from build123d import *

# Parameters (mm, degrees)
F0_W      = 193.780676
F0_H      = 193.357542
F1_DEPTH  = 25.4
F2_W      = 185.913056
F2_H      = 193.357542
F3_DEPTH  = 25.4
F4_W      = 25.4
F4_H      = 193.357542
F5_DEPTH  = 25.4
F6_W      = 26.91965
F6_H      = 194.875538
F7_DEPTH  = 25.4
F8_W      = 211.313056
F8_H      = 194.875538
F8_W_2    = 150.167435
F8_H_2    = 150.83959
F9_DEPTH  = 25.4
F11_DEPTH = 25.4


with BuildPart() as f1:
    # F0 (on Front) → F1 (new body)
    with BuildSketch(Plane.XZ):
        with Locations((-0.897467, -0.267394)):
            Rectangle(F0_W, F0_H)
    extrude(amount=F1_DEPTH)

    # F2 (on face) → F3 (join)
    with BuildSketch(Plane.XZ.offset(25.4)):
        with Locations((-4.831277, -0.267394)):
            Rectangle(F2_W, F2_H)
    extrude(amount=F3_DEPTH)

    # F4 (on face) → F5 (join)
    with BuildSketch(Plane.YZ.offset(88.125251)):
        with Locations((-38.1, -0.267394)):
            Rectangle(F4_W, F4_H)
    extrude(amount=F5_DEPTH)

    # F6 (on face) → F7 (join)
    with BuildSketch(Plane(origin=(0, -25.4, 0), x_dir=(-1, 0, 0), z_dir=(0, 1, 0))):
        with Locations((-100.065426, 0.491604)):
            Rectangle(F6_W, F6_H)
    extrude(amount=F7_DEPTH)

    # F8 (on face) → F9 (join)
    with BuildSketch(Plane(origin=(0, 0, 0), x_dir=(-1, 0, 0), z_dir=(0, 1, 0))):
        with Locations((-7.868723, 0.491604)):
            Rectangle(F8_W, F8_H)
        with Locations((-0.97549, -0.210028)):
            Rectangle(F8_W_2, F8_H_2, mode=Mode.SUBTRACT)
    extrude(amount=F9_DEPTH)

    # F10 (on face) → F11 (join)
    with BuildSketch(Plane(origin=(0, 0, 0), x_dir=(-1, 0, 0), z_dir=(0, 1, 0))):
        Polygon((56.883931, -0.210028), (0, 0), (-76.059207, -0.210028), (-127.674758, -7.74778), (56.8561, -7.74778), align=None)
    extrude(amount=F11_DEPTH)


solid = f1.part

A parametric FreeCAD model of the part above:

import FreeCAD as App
import Part
import Sketcher
from FreeCAD import Vector
Q = App.Units.Quantity


def add_polygon(sketch, points):
    """Adds a closed chain of lines whose ends are joined by coincident constraints."""
    first, n = sketch.GeometryCount, len(points)
    for a, b in zip(points, points[1:] + points[:1]):
        sketch.addGeometry(Part.LineSegment(App.Vector(*a, 0), App.Vector(*b, 0)), False)
    for i in range(n):
        sketch.addConstraint(Sketcher.Constraint("Coincident", first + i, 2, first + (i + 1) % n, 1))

doc = App.newDocument("Part")
body = doc.addObject("PartDesign::Body", "Body")

# Sketch on XZ plane
sketch1 = body.newObject("Sketcher::SketchObject", "Sketch")
sketch1.AttachmentSupport = (doc.getObject("XZ_Plane"), [""])
sketch1.MapMode = "FlatFace"
add_polygon(sketch1, [(-97.787805, 96.411377), (-97.787805, -96.946165), (95.992871, -96.946165), (95.992871, 96.411377)])  # lines 0-3
sketch1.addConstraint([
    Sketcher.Constraint("Vertical", 0),
    Sketcher.Constraint("Horizontal", 1),
    Sketcher.Constraint("Vertical", 2),
    Sketcher.Constraint("Horizontal", 3),
    Sketcher.Constraint("DistanceY", 0, 2, 0, 1, Q("193.357542 mm")),
    Sketcher.Constraint("DistanceX", 1, 1, 1, 2, Q("193.780676 mm")),
    Sketcher.Constraint("DistanceX", -1, 1, 1, 2, Q("95.992871 mm")),
    Sketcher.Constraint("DistanceY", 0, 2, -1, 1, Q("96.946165 mm")),
])
pad1 = body.newObject("PartDesign::Pad", "Pad")
pad1.Profile = sketch1
pad1.Length = Q("1 in")

# Sketch on XZ plane
sketch2 = body.newObject("Sketcher::SketchObject", "Sketch001")
sketch2.AttachmentSupport = (doc.getObject("XZ_Plane"), [""])
sketch2.MapMode = "FlatFace"
sketch2.AttachmentOffset = App.Placement(Vector(0, 0, 1 * 25.4), App.Rotation())
add_polygon(sketch2, [(-97.787805, 96.411377), (-97.787805, -96.946165), (88.125251, -96.946165), (88.125251, 96.411377)])  # lines 0-3
sketch2.addConstraint([
    Sketcher.Constraint("Vertical", 0),
    Sketcher.Constraint("Horizontal", 1),
    Sketcher.Constraint("Vertical", 2),
    Sketcher.Constraint("Horizontal", 3),
    Sketcher.Constraint("DistanceY", 0, 2, 0, 1, Q("193.357542 mm")),
    Sketcher.Constraint("DistanceX", 1, 1, 1, 2, Q("185.913056 mm")),
    Sketcher.Constraint("DistanceX", -1, 1, 1, 2, Q("88.125251 mm")),
    Sketcher.Constraint("DistanceY", 0, 2, -1, 1, Q("96.946165 mm")),
])
pad2 = body.newObject("PartDesign::Pad", "Pad001")
pad2.Profile = sketch2
pad2.Length = Q("1 in")

# Sketch on YZ plane
sketch3 = body.newObject("Sketcher::SketchObject", "Sketch002")
sketch3.AttachmentSupport = (doc.getObject("YZ_Plane"), [""])
sketch3.MapMode = "FlatFace"
sketch3.AttachmentOffset = App.Placement(Vector(0, 0, 88.125251), App.Rotation())
add_polygon(sketch3, [(-50.8, 96.411377), (-50.8, -96.946165), (-25.4, -96.946165), (-25.4, 96.411377)])  # lines 0-3
sketch3.addConstraint([
    Sketcher.Constraint("Vertical", 0),
    Sketcher.Constraint("Horizontal", 1),
    Sketcher.Constraint("Vertical", 2),
    Sketcher.Constraint("Horizontal", 3),
    Sketcher.Constraint("DistanceX", 1, 1, 1, 2, Q("1 in")),
    Sketcher.Constraint("DistanceX", 0, 2, -1, 1, Q("2 in")),
    Sketcher.Constraint("DistanceY", 0, 2, 0, 1, Q("193.357542 mm")),
    Sketcher.Constraint("DistanceY", 0, 2, -1, 1, Q("96.946165 mm")),
])
pad3 = body.newObject("PartDesign::Pad", "Pad002")
pad3.Profile = sketch3
pad3.Length = Q("1 in")

# Sketch on XZ plane
sketch4 = body.newObject("Sketcher::SketchObject", "Sketch003")
sketch4.AttachmentSupport = (doc.getObject("XZ_Plane"), [""])
sketch4.MapMode = "FlatFace"
sketch4.AttachmentOffset = App.Placement(Vector(0, 0, 1 * 25.4), App.Rotation())
add_polygon(sketch4, [(113.525251, 97.929373), (113.525251, -96.946165), (86.605601, -96.946165), (86.605601, 97.929373)])  # lines 0-3
sketch4.addConstraint([
    Sketcher.Constraint("Vertical", 0),
    Sketcher.Constraint("Horizontal", 1),
    Sketcher.Constraint("Vertical", 2),
    Sketcher.Constraint("Horizontal", 3),
    Sketcher.Constraint("DistanceX", 1, 2, 1, 1, Q("26.91965 mm")),
    Sketcher.Constraint("DistanceY", 0, 2, 0, 1, Q("194.875538 mm")),
    Sketcher.Constraint("DistanceX", -1, 1, 1, 2, Q("86.605601 mm")),
    Sketcher.Constraint("DistanceY", 0, 2, -1, 1, Q("96.946165 mm")),
])
pad4 = body.newObject("PartDesign::Pad", "Pad003")
pad4.Profile = sketch4
pad4.Length = Q("1 in")
pad4.Reversed = True

# Sketch on XZ plane
sketch5 = body.newObject("Sketcher::SketchObject", "Sketch004")
sketch5.AttachmentSupport = (doc.getObject("XZ_Plane"), [""])
sketch5.MapMode = "FlatFace"
add_polygon(sketch5, [(113.525251, 97.929373), (113.525251, -96.946165), (-97.787805, -96.946165), (-97.787805, 97.929373)])  # lines 0-3
add_polygon(sketch5, [(-74.108227, -75.629823), (76.059207, -75.629823), (76.059207, 75.209767), (-74.108227, 75.209767)])  # lines 4-7
sketch5.addConstraint([
    Sketcher.Constraint("Vertical", 0),
    Sketcher.Constraint("Horizontal", 1),
    Sketcher.Constraint("Vertical", 2),
    Sketcher.Constraint("Horizontal", 3),
    Sketcher.Constraint("Horizontal", 4),
    Sketcher.Constraint("Vertical", 5),
    Sketcher.Constraint("Horizontal", 6),
    Sketcher.Constraint("Vertical", 7),
    Sketcher.Constraint("DistanceY", 0, 2, 0, 1, Q("194.875538 mm")),
    Sketcher.Constraint("DistanceY", 5, 1, 5, 2, Q("150.83959 mm")),
    Sketcher.Constraint("DistanceX", 1, 2, 1, 1, Q("211.313056 mm")),
    Sketcher.Constraint("DistanceX", 4, 1, 4, 2, Q("150.167435 mm")),
    Sketcher.Constraint("DistanceX", -1, 1, 0, 2, Q("113.525251 mm")),
    Sketcher.Constraint("DistanceY", 0, 2, 4, 2, Q("21.316342 mm")),
    Sketcher.Constraint("DistanceX", 6, 2, 3, 2, Q("187.633478 mm")),
    Sketcher.Constraint("DistanceY", 0, 2, -1, 1, Q("96.946165 mm")),
])
pad5 = body.newObject("PartDesign::Pad", "Pad004")
pad5.Profile = sketch5
pad5.Length = Q("1 in")
pad5.Reversed = True

# Sketch on XZ plane
sketch6 = body.newObject("Sketcher::SketchObject", "Sketch005")
sketch6.AttachmentSupport = (doc.getObject("XZ_Plane"), [""])
sketch6.MapMode = "FlatFace"
add_polygon(sketch6, [(-56.883931, -0.210028), (0, 0), (76.059207, -0.210028), (127.674758, -7.74778), (-56.8561, -7.74778)])  # lines 0-4
sketch6.addConstraint([
    Sketcher.Constraint("Horizontal", 3),
    Sketcher.Constraint("Coincident", 0, 2, -1, 1),
    Sketcher.Constraint("Perpendicular", 0, 4),
    Sketcher.Constraint("Horizontal", 1, 2, 4, 2),
    Sketcher.Constraint("DistanceX", 3, 2, 3, 1, Q("184.530858 mm")),
    Sketcher.Constraint("DistanceX", 3, 2, -1, 1, Q("56.8561 mm")),
    Sketcher.Constraint("Distance", 0, Q("56.884319 mm")),
    Sketcher.Constraint("Distance", 2, Q("52.163041 mm")),
    Sketcher.Constraint("DistanceY", 2, 2, -1, 1, Q("7.74778 mm")),
])
pad6 = body.newObject("PartDesign::Pad", "Pad005")
pad6.Profile = sketch6
pad6.Length = Q("1 in")
pad6.Reversed = True

doc.recompute()
